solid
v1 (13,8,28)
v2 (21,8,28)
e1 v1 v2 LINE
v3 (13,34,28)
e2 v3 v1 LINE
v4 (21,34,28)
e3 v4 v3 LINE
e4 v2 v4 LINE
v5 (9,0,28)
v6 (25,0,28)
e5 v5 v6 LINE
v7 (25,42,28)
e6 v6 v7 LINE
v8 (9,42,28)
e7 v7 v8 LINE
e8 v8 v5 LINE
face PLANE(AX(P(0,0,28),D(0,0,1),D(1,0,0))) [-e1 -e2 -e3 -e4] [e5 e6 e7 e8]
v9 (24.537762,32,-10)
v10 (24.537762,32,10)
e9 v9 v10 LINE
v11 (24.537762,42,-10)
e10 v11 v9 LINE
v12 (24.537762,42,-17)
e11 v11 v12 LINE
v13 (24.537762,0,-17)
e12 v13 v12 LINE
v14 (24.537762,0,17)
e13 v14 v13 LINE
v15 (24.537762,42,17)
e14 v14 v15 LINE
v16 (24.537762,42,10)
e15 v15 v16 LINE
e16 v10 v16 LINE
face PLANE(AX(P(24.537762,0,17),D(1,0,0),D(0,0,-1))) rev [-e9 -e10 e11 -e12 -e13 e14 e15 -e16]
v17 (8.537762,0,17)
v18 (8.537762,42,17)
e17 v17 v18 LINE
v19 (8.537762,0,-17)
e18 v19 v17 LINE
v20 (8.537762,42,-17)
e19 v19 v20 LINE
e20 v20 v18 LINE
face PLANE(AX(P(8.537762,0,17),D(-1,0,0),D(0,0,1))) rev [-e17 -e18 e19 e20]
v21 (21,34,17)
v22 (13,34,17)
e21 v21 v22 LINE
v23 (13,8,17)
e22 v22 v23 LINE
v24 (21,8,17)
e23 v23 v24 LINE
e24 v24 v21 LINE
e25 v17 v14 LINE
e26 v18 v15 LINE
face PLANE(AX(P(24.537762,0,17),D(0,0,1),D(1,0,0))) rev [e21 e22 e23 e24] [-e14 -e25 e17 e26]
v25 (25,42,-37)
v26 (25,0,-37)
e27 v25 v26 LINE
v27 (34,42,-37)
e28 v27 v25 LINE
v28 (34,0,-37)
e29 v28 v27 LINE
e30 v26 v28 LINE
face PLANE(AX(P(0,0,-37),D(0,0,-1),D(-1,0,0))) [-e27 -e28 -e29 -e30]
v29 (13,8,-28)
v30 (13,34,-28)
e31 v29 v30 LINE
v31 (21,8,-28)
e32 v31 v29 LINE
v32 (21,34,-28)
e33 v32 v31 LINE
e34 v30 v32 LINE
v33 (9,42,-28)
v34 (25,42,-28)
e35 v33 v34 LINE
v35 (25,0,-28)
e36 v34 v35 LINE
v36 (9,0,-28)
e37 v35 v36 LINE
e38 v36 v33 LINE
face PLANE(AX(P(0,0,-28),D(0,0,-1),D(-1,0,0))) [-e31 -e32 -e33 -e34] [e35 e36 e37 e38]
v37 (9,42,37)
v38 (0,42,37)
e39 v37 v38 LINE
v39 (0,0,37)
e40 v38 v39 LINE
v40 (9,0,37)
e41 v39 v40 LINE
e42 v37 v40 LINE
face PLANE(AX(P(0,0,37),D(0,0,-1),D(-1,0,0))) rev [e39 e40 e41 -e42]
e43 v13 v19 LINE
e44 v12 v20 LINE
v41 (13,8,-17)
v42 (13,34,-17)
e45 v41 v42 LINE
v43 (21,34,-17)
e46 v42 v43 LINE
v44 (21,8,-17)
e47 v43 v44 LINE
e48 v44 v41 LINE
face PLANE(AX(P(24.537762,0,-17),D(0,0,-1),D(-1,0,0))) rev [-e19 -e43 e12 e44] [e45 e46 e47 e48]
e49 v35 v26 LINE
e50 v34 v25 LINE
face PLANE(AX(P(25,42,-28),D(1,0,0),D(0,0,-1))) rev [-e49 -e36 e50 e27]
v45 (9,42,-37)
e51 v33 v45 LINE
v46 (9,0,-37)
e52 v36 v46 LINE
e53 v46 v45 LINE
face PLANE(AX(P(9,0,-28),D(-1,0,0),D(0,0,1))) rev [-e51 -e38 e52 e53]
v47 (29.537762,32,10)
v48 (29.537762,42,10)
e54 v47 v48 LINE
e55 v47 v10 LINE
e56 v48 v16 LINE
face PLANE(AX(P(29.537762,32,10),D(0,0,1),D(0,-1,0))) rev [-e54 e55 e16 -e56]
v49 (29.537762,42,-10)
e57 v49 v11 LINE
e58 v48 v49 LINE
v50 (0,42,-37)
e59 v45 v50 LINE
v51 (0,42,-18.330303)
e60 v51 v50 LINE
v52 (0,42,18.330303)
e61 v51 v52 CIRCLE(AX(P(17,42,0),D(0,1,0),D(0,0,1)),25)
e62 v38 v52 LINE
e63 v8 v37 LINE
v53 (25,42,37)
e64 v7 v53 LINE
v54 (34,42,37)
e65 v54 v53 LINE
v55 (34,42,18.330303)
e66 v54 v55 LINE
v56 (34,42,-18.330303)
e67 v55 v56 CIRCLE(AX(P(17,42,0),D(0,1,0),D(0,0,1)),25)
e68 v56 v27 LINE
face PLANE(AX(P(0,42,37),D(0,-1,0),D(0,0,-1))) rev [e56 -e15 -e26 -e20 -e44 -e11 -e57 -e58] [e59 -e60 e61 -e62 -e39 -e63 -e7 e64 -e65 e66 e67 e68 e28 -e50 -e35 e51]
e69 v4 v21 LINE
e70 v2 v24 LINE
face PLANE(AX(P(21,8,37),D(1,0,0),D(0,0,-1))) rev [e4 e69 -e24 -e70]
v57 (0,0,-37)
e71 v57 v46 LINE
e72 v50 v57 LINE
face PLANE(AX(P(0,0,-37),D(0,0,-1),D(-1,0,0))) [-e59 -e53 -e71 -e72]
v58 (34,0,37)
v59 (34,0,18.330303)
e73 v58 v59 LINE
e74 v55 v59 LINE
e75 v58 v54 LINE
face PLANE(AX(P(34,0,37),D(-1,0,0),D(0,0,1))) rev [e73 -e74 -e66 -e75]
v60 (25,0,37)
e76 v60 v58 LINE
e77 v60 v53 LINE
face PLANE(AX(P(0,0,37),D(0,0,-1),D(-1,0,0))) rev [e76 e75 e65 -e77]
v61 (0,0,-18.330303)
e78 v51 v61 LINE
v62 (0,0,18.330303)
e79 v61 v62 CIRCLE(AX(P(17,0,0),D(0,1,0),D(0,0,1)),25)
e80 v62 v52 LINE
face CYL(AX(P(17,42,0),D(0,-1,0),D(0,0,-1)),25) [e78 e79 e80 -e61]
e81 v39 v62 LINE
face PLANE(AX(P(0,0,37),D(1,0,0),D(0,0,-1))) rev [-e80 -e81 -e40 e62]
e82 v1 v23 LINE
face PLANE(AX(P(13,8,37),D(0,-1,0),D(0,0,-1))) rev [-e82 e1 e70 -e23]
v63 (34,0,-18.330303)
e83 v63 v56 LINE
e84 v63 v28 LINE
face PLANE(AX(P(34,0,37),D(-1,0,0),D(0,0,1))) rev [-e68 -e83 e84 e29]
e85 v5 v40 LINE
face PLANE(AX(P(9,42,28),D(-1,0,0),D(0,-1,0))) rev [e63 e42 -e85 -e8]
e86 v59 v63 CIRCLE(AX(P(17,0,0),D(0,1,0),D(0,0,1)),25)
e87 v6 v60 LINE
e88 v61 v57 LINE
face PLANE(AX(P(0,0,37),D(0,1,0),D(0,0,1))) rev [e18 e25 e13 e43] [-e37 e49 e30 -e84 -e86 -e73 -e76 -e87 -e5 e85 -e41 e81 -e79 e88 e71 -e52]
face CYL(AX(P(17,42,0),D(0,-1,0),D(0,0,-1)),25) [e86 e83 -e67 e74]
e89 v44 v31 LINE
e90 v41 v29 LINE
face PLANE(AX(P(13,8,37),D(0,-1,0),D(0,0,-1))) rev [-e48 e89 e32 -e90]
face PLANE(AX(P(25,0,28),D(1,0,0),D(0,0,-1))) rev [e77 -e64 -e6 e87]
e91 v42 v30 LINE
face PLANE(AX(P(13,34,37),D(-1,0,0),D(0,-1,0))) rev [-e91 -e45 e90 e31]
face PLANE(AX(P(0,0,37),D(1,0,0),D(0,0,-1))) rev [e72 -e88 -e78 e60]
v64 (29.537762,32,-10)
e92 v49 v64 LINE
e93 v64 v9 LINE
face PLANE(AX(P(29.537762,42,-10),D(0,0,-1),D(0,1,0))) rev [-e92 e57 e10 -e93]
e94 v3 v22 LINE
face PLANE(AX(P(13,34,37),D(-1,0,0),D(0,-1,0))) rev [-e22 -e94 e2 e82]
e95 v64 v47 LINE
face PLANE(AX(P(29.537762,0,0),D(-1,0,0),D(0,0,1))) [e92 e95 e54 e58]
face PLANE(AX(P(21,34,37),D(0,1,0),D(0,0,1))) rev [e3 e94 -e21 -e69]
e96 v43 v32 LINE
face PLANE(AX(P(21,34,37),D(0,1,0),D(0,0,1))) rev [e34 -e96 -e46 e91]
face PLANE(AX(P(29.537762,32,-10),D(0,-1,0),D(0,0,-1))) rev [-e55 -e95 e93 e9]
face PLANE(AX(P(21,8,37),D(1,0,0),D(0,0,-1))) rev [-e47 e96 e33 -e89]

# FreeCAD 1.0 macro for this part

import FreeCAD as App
import Part
import Sketcher
from FreeCAD import Vector
Q = App.Units.Quantity

doc = App.newDocument("Part")
params = doc.addObject("Spreadsheet::Sheet", "Params")
for row, (alias, value) in enumerate([
    ("sketch1_width", "34 mm"),
    ("sketch1_height", "42 mm"),
    ("pad1_length", "74 mm"),
    ("sketch2_width", "16 mm"),
    ("sketch2_height", "42 mm"),
    ("pocket1_length", "9 mm"),
    ("sketch3_width", "16 mm"),
    ("sketch3_height", "42 mm"),
    ("pocket2_length", "9 mm"),
    ("sketch4_diameter", "50 mm"),
    ("sketch5_width", "16 mm"),
    ("sketch5_height", "34 mm"),
    ("sketch6_width", "10 mm"),
    ("sketch6_height", "20 mm"),
    ("pocket4_length", "5 mm"),
    ("sketch7_width", "8 mm"),
    ("sketch7_height", "26 mm"),
], start=1):
    params.set(f"A{row}", alias)
    params.set(f"B{row}", "=" + value)
    params.setAlias(f"B{row}", alias)

body = doc.addObject("PartDesign::Body", "Body")

sketch1 = body.newObject("Sketcher::SketchObject", "Sketch")
sketch1.AttachmentSupport = (doc.getObject("XY_Plane"), [""])
sketch1.MapMode = "FlatFace"
sketch1.addGeometry([
    Part.LineSegment(Vector(0, 42, 0), Vector(0, 0, 0)),
    Part.LineSegment(Vector(0, 0, 0), Vector(34, 0, 0)),
    Part.LineSegment(Vector(34, 0, 0), Vector(34, 42, 0)),
    Part.LineSegment(Vector(34, 42, 0), Vector(0, 42, 0)),
], False)
sketch1.addConstraint([
    Sketcher.Constraint("Coincident", 0, 2, 1, 1),
    Sketcher.Constraint("Coincident", 1, 2, 2, 1),
    Sketcher.Constraint("Coincident", 2, 2, 3, 1),
    Sketcher.Constraint("Coincident", 3, 2, 0, 1),
    Sketcher.Constraint("Vertical", 0),
    Sketcher.Constraint("Horizontal", 1),
    Sketcher.Constraint("Vertical", 2),
    Sketcher.Constraint("Horizontal", 3),
    Sketcher.Constraint("Coincident", 0, 2, -1, 1),
    Sketcher.Constraint("DistanceX", 1, 1, 1, 2, Q("34 mm")),
    Sketcher.Constraint("DistanceY", 0, 2, 0, 1, Q("42 mm")),
])
sketch1.setExpression("Constraints[9]", "Params.sketch1_width")
sketch1.setExpression("Constraints[10]", "Params.sketch1_height")
pad1 = body.newObject("PartDesign::Pad", "Pad")
pad1.Profile = sketch1
pad1.setExpression("Length", "Params.pad1_length")
pad1.Midplane = True

sketch2 = body.newObject("Sketcher::SketchObject", "Sketch001")
sketch2.AttachmentSupport = (doc.getObject("XY_Plane"), [""])
sketch2.MapMode = "FlatFace"
sketch2.AttachmentOffset = App.Placement(Vector(0, 0, 37), App.Rotation())
sketch2.addGeometry([
    Part.LineSegment(Vector(9, 42, 0), Vector(9, 0, 0)),
    Part.LineSegment(Vector(9, 0, 0), Vector(25, 0, 0)),
    Part.LineSegment(Vector(25, 0, 0), Vector(25, 42, 0)),
    Part.LineSegment(Vector(25, 42, 0), Vector(9, 42, 0)),
], False)
sketch2.addConstraint([
    Sketcher.Constraint("Coincident", 0, 2, 1, 1),
    Sketcher.Constraint("Coincident", 1, 2, 2, 1),
    Sketcher.Constraint("Coincident", 2, 2, 3, 1),
    Sketcher.Constraint("Coincident", 3, 2, 0, 1),
    Sketcher.Constraint("Vertical", 0),
    Sketcher.Constraint("Horizontal", 1),
    Sketcher.Constraint("Vertical", 2),
    Sketcher.Constraint("Horizontal", 3),
    Sketcher.Constraint("PointOnObject", 0, 2, -1),
    Sketcher.Constraint("DistanceX", 1, 1, 1, 2, Q("16 mm")),
    Sketcher.Constraint("DistanceY", 0, 2, 0, 1, Q("42 mm")),
    Sketcher.Constraint("DistanceX", -1, 1, 0, 2, Q("9 mm")),
])
sketch2.setExpression("Constraints[9]", "Params.sketch2_width")
sketch2.setExpression("Constraints[10]", "Params.sketch2_height")
pocket1 = body.newObject("PartDesign::Pocket", "Pocket")
pocket1.Profile = sketch2
pocket1.setExpression("Length", "Params.pocket1_length")

sketch3 = body.newObject("Sketcher::SketchObject", "Sketch002")
sketch3.AttachmentSupport = (doc.getObject("XY_Plane"), [""])
sketch3.MapMode = "FlatFace"
sketch3.AttachmentOffset = App.Placement(Vector(0, 0, -37), App.Rotation())
sketch3.addGeometry([
    Part.LineSegment(Vector(25, 42, 0), Vector(25, 0, 0)),
    Part.LineSegment(Vector(25, 0, 0), Vector(9, 0, 0)),
    Part.LineSegment(Vector(9, 0, 0), Vector(9, 42, 0)),
    Part.LineSegment(Vector(9, 42, 0), Vector(25, 42, 0)),
], False)
sketch3.addConstraint([
    Sketcher.Constraint("Coincident", 0, 2, 1, 1),
    Sketcher.Constraint("Coincident", 1, 2, 2, 1),
    Sketcher.Constraint("Coincident", 2, 2, 3, 1),
    Sketcher.Constraint("Coincident", 3, 2, 0, 1),
    Sketcher.Constraint("Vertical", 0),
    Sketcher.Constraint("Horizontal", 1),
    Sketcher.Constraint("Vertical", 2),
    Sketcher.Constraint("Horizontal", 3),
    Sketcher.Constraint("PointOnObject", 0, 2, -1),
    Sketcher.Constraint("DistanceX", 1, 2, 1, 1, Q("16 mm")),
    Sketcher.Constraint("DistanceY", 0, 2, 0, 1, Q("42 mm")),
    Sketcher.Constraint("DistanceX", -1, 1, 0, 2, Q("25 mm")),
])
sketch3.setExpression("Constraints[9]", "Params.sketch3_width")
sketch3.setExpression("Constraints[10]", "Params.sketch3_height")
pocket2 = body.newObject("PartDesign::Pocket", "Pocket001")
pocket2.Profile = sketch3
pocket2.setExpression("Length", "Params.pocket2_length")
pocket2.Reversed = True

sketch4 = body.newObject("Sketcher::SketchObject", "Sketch003")
sketch4.AttachmentSupport = (doc.getObject("XZ_Plane"), [""])
sketch4.MapMode = "FlatFace"
sketch4.addGeometry(Part.Circle(Vector(17, 0, 0), Vector(0, 0, 1), 25), False)
sketch4.addConstraint([
    Sketcher.Constraint("PointOnObject", 0, 3, -1),
    Sketcher.Constraint("Diameter", 0, Q("50 mm")),
    Sketcher.Constraint("DistanceX", -1, 1, 0, 3, Q("17 mm")),
])
sketch4.setExpression("Constraints[1]", "Params.sketch4_diameter")
pad2 = body.newObject("PartDesign::Pad", "Pad001")
pad2.Profile = sketch4
pad2.Type = "UpToLast"
pad2.Reversed = True

sketch5 = body.newObject("Sketcher::SketchObject", "Sketch004")
sketch5.AttachmentSupport = (doc.getObject("XZ_Plane"), [""])
sketch5.MapMode = "FlatFace"
sketch5.AttachmentOffset = App.Placement(Vector(0, 0, -42), App.Rotation())
sketch5.addGeometry([
    Part.LineSegment(Vector(8.537762, -17, 0), Vector(8.537762, 17, 0)),
    Part.LineSegment(Vector(8.537762, 17, 0), Vector(24.537762, 17, 0)),
    Part.LineSegment(Vector(24.537762, 17, 0), Vector(24.537762, -17, 0)),
    Part.LineSegment(Vector(24.537762, -17, 0), Vector(8.537762, -17, 0)),
], False)
sketch5.addConstraint([
    Sketcher.Constraint("Coincident", 0, 2, 1, 1),
    Sketcher.Constraint("Coincident", 1, 2, 2, 1),
    Sketcher.Constraint("Coincident", 2, 2, 3, 1),
    Sketcher.Constraint("Coincident", 3, 2, 0, 1),
    Sketcher.Constraint("Vertical", 0),
    Sketcher.Constraint("Horizontal", 1),
    Sketcher.Constraint("Vertical", 2),
    Sketcher.Constraint("Horizontal", 3),
    Sketcher.Constraint("DistanceX", 1, 1, 1, 2, Q("16 mm")),
    Sketcher.Constraint("DistanceY", 0, 1, 0, 2, Q("34 mm")),
    Sketcher.Constraint("DistanceY", -1, 1, 0, 2, Q("17 mm")),
    Sketcher.Constraint("DistanceX", -1, 1, 0, 2, Q("8.537762 mm")),
])
sketch5.setExpression("Constraints[8]", "Params.sketch5_width")
sketch5.setExpression("Constraints[9]", "Params.sketch5_height")
pocket3 = body.newObject("PartDesign::Pocket", "Pocket002")
pocket3.Profile = sketch5
pocket3.Type = "ThroughAll"
pocket3.Reversed = True

sketch6 = body.newObject("Sketcher::SketchObject", "Sketch005")
sketch6.AttachmentSupport = (doc.getObject("YZ_Plane"), [""])
sketch6.MapMode = "FlatFace"
sketch6.AttachmentOffset = App.Placement(Vector(0, 0, 24.537762), App.Rotation())
sketch6.addGeometry([
    Part.LineSegment(Vector(42, -10, 0), Vector(32, -10, 0)),
    Part.LineSegment(Vector(32, -10, 0), Vector(32, 10, 0)),
    Part.LineSegment(Vector(32, 10, 0), Vector(42, 10, 0)),
    Part.LineSegment(Vector(42, 10, 0), Vector(42, -10, 0)),
], False)
sketch6.addConstraint([
    Sketcher.Constraint("Coincident", 0, 2, 1, 1),
    Sketcher.Constraint("Coincident", 1, 2, 2, 1),
    Sketcher.Constraint("Coincident", 2, 2, 3, 1),
    Sketcher.Constraint("Coincident", 3, 2, 0, 1),
    Sketcher.Constraint("Horizontal", 0),
    Sketcher.Constraint("Vertical", 1),
    Sketcher.Constraint("Horizontal", 2),
    Sketcher.Constraint("Vertical", 3),
    Sketcher.Constraint("DistanceX", 0, 2, 0, 1, Q("10 mm")),
    Sketcher.Constraint("DistanceY", 1, 1, 1, 2, Q("20 mm")),
    Sketcher.Constraint("DistanceX", -1, 1, 0, 2, Q("32 mm")),
    Sketcher.Constraint("DistanceY", 0, 2, -1, 1, Q("10 mm")),
])
sketch6.setExpression("Constraints[8]", "Params.sketch6_width")
sketch6.setExpression("Constraints[9]", "Params.sketch6_height")
pocket4 = body.newObject("PartDesign::Pocket", "Pocket003")
pocket4.Profile = sketch6
pocket4.setExpression("Length", "Params.pocket4_length")
pocket4.Reversed = True

sketch7 = body.newObject("Sketcher::SketchObject", "Sketch006")
sketch7.AttachmentSupport = (doc.getObject("XY_Plane"), [""])
sketch7.MapMode = "FlatFace"
sketch7.AttachmentOffset = App.Placement(Vector(0, 0, -28), App.Rotation())
sketch7.addGeometry([
    Part.LineSegment(Vector(21, 34, 0), Vector(21, 8, 0)),
    Part.LineSegment(Vector(21, 8, 0), Vector(13, 8, 0)),
    Part.LineSegment(Vector(13, 8, 0), Vector(13, 34, 0)),
    Part.LineSegment(Vector(13, 34, 0), Vector(21, 34, 0)),
], False)
sketch7.addConstraint([
    Sketcher.Constraint("Coincident", 0, 2, 1, 1),
    Sketcher.Constraint("Coincident", 1, 2, 2, 1),
    Sketcher.Constraint("Coincident", 2, 2, 3, 1),
    Sketcher.Constraint("Coincident", 3, 2, 0, 1),
    Sketcher.Constraint("Vertical", 0),
    Sketcher.Constraint("Horizontal", 1),
    Sketcher.Constraint("Vertical", 2),
    Sketcher.Constraint("Horizontal", 3),
    Sketcher.Constraint("DistanceX", 1, 2, 1, 1, Q("8 mm")),
    Sketcher.Constraint("DistanceY", 0, 2, 0, 1, Q("26 mm")),
    Sketcher.Constraint("DistanceX", -1, 1, 0, 2, Q("21 mm")),
    Sketcher.Constraint("DistanceY", -1, 1, 0, 2, Q("8 mm")),
])
sketch7.setExpression("Constraints[8]", "Params.sketch7_width")
sketch7.setExpression("Constraints[9]", "Params.sketch7_height")
pocket5 = body.newObject("PartDesign::Pocket", "Pocket004")
pocket5.Profile = sketch7
pocket5.Type = "ThroughAll"
pocket5.Reversed = True

doc.recompute()
